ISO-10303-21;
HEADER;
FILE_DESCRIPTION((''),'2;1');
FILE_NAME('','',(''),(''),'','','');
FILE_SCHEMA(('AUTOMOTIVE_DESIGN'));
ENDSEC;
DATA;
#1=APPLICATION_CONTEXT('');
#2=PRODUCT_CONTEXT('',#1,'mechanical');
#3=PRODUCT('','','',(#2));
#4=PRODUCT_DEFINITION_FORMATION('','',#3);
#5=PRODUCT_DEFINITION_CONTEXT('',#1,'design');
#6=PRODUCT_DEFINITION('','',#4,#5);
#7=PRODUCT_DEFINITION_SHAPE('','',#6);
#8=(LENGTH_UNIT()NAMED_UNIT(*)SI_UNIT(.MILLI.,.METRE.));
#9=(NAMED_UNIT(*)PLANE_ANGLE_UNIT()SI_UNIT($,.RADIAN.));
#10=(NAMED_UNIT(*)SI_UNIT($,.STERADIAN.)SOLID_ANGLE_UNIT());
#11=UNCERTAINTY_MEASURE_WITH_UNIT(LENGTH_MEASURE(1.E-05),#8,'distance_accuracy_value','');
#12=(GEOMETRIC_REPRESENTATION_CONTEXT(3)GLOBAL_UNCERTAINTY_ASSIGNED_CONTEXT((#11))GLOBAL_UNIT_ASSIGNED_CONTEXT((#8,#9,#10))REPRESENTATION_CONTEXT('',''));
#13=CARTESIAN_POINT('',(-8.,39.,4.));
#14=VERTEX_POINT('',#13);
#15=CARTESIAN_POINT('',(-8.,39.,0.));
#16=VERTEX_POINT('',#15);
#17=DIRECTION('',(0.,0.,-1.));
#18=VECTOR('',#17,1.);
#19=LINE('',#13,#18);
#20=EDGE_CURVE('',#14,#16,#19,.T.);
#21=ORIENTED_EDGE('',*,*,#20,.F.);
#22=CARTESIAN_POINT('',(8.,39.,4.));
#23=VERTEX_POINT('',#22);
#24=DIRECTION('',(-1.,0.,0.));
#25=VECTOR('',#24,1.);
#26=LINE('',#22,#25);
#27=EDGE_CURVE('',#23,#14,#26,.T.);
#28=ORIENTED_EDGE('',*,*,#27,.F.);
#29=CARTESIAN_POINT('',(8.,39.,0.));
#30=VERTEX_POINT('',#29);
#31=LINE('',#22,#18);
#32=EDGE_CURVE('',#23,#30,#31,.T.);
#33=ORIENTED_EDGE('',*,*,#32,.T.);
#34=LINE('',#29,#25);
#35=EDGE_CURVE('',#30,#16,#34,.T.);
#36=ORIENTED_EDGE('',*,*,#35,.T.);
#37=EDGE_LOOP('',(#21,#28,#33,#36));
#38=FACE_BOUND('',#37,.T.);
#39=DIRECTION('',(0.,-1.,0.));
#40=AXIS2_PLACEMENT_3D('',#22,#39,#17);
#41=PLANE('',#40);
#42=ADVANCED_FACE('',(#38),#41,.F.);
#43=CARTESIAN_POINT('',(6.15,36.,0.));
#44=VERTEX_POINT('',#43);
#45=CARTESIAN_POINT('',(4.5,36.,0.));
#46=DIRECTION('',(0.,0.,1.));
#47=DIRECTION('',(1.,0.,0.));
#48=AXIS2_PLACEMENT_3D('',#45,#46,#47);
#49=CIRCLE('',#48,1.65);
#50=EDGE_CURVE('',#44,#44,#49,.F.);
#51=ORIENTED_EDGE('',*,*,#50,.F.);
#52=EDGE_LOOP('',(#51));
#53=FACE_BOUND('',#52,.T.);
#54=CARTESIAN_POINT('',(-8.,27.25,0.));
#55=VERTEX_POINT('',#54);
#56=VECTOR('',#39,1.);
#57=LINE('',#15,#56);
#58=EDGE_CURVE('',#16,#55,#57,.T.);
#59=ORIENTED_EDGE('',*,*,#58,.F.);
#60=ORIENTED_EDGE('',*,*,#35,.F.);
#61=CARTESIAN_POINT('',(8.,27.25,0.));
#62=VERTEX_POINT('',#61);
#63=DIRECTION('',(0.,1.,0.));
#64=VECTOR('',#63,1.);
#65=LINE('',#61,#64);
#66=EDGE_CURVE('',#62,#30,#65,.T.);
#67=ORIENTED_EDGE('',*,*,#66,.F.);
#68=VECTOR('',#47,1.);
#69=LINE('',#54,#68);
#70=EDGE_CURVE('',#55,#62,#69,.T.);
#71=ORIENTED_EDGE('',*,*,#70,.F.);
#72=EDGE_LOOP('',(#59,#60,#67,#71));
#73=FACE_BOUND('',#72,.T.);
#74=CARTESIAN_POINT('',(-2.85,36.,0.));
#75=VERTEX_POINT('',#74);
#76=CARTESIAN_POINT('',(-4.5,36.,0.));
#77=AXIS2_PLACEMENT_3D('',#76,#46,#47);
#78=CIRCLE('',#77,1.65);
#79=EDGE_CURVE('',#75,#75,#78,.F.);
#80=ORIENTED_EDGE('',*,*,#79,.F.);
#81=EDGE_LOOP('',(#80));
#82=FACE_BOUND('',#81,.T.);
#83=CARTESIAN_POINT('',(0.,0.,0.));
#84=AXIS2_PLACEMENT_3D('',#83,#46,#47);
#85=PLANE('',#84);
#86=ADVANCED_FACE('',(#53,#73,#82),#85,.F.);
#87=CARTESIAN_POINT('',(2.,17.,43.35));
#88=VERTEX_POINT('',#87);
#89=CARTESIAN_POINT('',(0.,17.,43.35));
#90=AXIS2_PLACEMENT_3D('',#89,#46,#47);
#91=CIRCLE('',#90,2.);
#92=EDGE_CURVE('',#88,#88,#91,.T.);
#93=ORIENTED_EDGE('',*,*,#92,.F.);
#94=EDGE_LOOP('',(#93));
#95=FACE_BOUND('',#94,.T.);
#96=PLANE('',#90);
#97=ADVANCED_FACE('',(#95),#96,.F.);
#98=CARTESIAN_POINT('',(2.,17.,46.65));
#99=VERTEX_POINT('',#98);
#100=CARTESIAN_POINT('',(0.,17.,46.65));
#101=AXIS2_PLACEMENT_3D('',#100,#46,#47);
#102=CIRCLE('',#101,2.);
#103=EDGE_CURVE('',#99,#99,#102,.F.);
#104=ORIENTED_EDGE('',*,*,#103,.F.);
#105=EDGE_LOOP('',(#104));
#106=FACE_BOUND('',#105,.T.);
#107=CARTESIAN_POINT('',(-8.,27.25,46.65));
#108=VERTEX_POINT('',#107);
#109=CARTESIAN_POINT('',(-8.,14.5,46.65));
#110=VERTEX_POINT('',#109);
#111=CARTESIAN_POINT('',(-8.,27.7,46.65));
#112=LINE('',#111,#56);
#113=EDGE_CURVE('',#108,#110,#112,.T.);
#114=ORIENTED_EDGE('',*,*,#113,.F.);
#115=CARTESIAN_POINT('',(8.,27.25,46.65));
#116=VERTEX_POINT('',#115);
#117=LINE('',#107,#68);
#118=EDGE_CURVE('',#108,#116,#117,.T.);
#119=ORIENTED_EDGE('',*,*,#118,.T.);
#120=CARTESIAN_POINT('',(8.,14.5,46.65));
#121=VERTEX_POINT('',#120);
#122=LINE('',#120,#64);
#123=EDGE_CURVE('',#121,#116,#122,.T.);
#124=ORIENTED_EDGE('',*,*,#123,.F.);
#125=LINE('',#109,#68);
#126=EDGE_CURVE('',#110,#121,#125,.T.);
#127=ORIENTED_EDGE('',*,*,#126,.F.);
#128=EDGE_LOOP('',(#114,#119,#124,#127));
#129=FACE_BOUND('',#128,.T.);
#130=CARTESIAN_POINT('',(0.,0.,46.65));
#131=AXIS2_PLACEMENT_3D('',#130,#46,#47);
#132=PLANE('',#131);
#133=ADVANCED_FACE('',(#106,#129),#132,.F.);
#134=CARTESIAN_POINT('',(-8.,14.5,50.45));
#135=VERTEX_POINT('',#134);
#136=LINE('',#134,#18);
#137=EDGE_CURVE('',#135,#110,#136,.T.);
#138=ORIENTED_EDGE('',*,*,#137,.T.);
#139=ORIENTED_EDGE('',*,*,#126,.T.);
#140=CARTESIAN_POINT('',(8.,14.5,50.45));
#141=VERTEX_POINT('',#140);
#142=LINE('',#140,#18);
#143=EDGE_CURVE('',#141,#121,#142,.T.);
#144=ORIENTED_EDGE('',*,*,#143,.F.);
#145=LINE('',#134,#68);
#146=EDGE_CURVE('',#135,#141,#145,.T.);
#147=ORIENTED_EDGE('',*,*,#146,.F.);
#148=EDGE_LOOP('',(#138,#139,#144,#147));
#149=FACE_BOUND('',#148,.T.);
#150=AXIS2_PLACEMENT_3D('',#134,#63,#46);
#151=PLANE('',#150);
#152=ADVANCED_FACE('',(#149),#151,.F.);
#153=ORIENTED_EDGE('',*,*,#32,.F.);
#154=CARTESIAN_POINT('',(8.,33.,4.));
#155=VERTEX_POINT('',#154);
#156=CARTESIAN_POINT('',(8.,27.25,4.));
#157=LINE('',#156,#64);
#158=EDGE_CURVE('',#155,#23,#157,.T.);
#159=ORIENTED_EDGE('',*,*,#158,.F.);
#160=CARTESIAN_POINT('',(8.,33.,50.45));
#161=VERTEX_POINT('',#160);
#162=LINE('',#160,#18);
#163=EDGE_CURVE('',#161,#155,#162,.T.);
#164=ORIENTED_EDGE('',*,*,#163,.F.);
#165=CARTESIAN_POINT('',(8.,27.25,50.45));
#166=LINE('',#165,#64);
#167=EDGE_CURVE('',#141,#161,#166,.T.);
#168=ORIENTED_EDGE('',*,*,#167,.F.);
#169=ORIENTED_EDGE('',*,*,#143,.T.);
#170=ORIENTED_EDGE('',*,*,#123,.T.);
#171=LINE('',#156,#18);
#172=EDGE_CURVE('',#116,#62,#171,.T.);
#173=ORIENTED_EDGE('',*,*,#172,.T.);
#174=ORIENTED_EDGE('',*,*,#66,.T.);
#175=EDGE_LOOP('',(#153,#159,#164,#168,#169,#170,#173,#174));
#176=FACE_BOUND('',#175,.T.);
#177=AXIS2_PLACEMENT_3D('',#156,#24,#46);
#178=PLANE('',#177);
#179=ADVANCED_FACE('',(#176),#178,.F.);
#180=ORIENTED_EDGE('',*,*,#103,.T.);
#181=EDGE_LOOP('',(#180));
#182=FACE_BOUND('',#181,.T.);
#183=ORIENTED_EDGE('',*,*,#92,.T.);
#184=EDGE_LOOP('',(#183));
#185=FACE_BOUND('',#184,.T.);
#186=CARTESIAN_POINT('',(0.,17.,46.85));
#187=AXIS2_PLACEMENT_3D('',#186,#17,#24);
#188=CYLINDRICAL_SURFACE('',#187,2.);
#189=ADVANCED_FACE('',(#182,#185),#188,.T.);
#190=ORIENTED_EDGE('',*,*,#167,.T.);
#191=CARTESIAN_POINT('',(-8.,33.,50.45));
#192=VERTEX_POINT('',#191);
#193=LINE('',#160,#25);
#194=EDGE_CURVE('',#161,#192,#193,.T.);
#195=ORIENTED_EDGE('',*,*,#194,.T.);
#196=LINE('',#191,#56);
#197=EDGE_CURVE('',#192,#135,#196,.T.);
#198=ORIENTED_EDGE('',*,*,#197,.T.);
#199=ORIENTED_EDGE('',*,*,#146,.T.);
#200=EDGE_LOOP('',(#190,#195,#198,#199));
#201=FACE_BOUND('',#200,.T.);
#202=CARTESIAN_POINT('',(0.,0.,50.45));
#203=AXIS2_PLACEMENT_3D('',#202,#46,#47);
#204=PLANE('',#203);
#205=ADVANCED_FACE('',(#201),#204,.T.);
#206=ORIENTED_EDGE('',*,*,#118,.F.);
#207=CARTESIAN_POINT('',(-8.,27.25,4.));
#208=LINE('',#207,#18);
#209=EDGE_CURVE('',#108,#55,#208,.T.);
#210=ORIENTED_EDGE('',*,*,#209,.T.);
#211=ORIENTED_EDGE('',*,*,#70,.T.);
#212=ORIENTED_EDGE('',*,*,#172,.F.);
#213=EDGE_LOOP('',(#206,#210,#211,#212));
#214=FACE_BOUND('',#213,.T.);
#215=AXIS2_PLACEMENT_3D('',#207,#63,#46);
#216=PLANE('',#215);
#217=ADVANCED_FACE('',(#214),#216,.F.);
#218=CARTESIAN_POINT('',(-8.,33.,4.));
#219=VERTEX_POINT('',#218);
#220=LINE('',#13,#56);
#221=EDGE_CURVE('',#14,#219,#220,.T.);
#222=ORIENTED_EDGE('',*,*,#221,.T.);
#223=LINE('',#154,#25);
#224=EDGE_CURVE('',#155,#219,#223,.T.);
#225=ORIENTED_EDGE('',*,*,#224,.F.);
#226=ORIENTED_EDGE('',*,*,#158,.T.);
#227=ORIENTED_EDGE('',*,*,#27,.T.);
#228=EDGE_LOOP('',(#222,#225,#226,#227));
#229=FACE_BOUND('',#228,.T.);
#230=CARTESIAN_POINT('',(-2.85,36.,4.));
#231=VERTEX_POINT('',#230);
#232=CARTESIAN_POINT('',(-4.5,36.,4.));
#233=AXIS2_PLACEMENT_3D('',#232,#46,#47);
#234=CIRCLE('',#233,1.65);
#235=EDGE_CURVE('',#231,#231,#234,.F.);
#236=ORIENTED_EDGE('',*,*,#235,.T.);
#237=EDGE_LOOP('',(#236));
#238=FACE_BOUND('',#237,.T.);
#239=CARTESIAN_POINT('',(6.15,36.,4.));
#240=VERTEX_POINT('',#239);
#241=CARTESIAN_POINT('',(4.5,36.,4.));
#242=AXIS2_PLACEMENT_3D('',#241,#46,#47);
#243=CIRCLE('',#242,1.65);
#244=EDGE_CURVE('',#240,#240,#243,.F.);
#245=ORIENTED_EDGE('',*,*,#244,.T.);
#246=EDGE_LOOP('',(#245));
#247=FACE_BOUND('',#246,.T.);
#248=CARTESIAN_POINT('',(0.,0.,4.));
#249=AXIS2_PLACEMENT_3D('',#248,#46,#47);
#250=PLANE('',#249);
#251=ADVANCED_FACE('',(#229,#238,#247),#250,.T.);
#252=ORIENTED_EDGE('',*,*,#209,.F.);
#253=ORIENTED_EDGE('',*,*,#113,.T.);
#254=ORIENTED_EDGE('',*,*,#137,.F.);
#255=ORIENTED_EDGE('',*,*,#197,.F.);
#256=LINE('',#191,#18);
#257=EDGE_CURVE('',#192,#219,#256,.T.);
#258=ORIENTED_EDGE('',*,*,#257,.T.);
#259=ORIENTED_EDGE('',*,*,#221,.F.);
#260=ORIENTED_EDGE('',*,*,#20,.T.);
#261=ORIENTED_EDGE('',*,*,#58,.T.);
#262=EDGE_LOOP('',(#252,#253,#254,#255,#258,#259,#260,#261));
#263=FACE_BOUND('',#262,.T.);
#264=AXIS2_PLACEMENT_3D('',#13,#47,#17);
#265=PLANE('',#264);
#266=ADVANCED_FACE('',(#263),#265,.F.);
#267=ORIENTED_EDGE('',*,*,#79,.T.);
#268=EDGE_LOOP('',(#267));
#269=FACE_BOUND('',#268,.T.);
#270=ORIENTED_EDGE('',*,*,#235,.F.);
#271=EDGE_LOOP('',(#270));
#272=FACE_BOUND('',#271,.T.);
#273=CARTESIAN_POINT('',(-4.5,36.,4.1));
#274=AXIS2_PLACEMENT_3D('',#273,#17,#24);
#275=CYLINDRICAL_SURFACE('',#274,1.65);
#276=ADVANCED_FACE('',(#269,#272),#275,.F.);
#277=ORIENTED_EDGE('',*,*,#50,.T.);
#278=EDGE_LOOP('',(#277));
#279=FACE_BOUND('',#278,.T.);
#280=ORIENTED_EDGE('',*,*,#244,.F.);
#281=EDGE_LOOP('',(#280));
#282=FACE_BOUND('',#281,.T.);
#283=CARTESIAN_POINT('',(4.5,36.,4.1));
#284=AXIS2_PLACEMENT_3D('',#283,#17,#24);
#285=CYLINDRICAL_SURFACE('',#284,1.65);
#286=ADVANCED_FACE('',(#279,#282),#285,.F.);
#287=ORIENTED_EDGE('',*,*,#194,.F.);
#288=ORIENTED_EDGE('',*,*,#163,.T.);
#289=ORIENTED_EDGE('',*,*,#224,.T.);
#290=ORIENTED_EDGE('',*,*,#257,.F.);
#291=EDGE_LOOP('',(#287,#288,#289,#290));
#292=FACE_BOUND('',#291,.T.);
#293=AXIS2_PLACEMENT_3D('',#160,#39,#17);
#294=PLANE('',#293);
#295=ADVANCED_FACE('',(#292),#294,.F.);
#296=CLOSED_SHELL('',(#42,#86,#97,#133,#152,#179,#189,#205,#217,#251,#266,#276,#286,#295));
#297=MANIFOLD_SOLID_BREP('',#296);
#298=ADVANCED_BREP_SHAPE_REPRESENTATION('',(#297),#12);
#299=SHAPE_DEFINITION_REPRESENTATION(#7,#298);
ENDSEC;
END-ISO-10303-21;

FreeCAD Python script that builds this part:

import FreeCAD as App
import Part
import Sketcher

V = App.Vector
Q = App.Units.Quantity


def add_polygon(sketch, points):
    """Adds a closed chain of lines whose ends are joined by coincident constraints."""
    first, n = sketch.GeometryCount, len(points)
    for a, b in zip(points, points[1:] + points[:1]):
        sketch.addGeometry(Part.LineSegment(App.Vector(*a, 0), App.Vector(*b, 0)), False)
    for i in range(n):
        sketch.addConstraint(Sketcher.Constraint("Coincident", first + i, 2, first + (i + 1) % n, 1))

doc = App.newDocument("Part")
body = doc.addObject("PartDesign::Body", "Body")

sketch1 = doc.addObject("Sketcher::SketchObject", "Sketch")
body.addObject(sketch1)
sketch1.AttachmentSupport = (doc.XY_Plane, [""])
sketch1.MapMode = "FlatFace"
add_polygon(sketch1, [(-8, 39), (-8, 27), (8, 27), (8, 39)])
sketch1.addConstraint([
    Sketcher.Constraint("Vertical", 0),
    Sketcher.Constraint("Horizontal", 1),
    Sketcher.Constraint("Vertical", 2),
    Sketcher.Constraint("Horizontal", 3),
    Sketcher.Constraint("DistanceX", 1, 1, 1, 2, Q("16 mm")),
    Sketcher.Constraint("DistanceX", 0, 2, -1, 1, Q("8 mm")),
    Sketcher.Constraint("DistanceY", -1, 1, 2, 2, Q("39 mm")),
    Sketcher.Constraint("DistanceY", 0, 2, 0, 1, Q("11.75 mm")),
])
pad1 = doc.addObject("PartDesign::Pad", "Pad")
body.addObject(pad1)
pad1.Profile = sketch1
pad1.Length = 4

sketch2 = doc.addObject("Sketcher::SketchObject", "Sketch001")
body.addObject(sketch2)
sketch2.AttachmentSupport = (doc.XY_Plane, [""])
sketch2.MapMode = "FlatFace"
sketch2.AttachmentOffset = App.Placement(V(0, 0, 4), App.Rotation())
add_polygon(sketch2, [(-8, 33), (-8, 27), (8, 27), (8, 33)])
sketch2.addConstraint([
    Sketcher.Constraint("Vertical", 0),
    Sketcher.Constraint("Horizontal", 1),
    Sketcher.Constraint("Vertical", 2),
    Sketcher.Constraint("Horizontal", 3),
    Sketcher.Constraint("DistanceX", 1, 1, 1, 2, Q("16 mm")),
    Sketcher.Constraint("DistanceX", 0, 2, -1, 1, Q("8 mm")),
    Sketcher.Constraint("DistanceY", -1, 1, 2, 2, Q("33 mm")),
    Sketcher.Constraint("DistanceY", 0, 2, 0, 1, Q("5.75 mm")),
])
pad2 = doc.addObject("PartDesign::Pad", "Pad001")
body.addObject(pad2)
pad2.Profile = sketch2
pad2.Length = 46.45

sketch3 = doc.addObject("Sketcher::SketchObject", "Sketch002")
body.addObject(sketch3)
sketch3.AttachmentSupport = (doc.XY_Plane, [""])
sketch3.MapMode = "FlatFace"
sketch3.AttachmentOffset = App.Placement(V(0, 0, 46.65), App.Rotation())
add_polygon(sketch3, [(-8, 28), (-8, 14), (8, 14), (8, 28)])
sketch3.addConstraint([
    Sketcher.Constraint("Vertical", 0),
    Sketcher.Constraint("Horizontal", 1),
    Sketcher.Constraint("Vertical", 2),
    Sketcher.Constraint("Horizontal", 3),
    Sketcher.Constraint("DistanceX", 1, 1, 1, 2, Q("16 mm")),
    Sketcher.Constraint("DistanceY", 0, 2, 0, 1, Q("13.2 mm")),
    Sketcher.Constraint("DistanceX", 0, 2, -1, 1, Q("8 mm")),
    Sketcher.Constraint("DistanceY", -1, 1, 0, 2, Q("14.5 mm")),
])
pad3 = doc.addObject("PartDesign::Pad", "Pad002")
body.addObject(pad3)
pad3.Profile = sketch3
pad3.Length = 3.8

sketch4 = doc.addObject("Sketcher::SketchObject", "Sketch003")
body.addObject(sketch4)
sketch4.AttachmentSupport = (doc.XY_Plane, [""])
sketch4.MapMode = "FlatFace"
sketch4.AttachmentOffset = App.Placement(V(0, 0, -0.1), App.Rotation())
sketch4.addGeometry([
    Part.Circle(V(-4.5, 36, 0), V(0, 0, 1), 1.6),
    Part.Circle(V(4.5, 36, 0), V(0, 0, 1), 1.6),
], False)
sketch4.addConstraint([
    Sketcher.Constraint("Equal", 0, 1),
    Sketcher.Constraint("Symmetric", 0, 3, 1, 3, -2),
    Sketcher.Constraint("Diameter", 0, Q("3.3 mm")),
    Sketcher.Constraint("DistanceY", -1, 1, 0, 3, Q("36 mm")),
    Sketcher.Constraint("DistanceX", 0, 3, 1, 3, Q("9 mm")),
])
pocket1 = doc.addObject("PartDesign::Pocket", "Pocket")
body.addObject(pocket1)
pocket1.Profile = sketch4
pocket1.Length = 4.2
pocket1.Reversed = True

sketch5 = doc.addObject("Sketcher::SketchObject", "Sketch004")
body.addObject(sketch5)
sketch5.AttachmentSupport = (doc.XY_Plane, [""])
sketch5.MapMode = "FlatFace"
sketch5.AttachmentOffset = App.Placement(V(0, 0, 43.35), App.Rotation())
sketch5.addGeometry(Part.Circle(V(0, 17, 0), V(0, 0, 1), 2), False)
sketch5.addConstraint([
    Sketcher.Constraint("PointOnObject", 0, 3, -2),
    Sketcher.Constraint("Diameter", 0, Q("4 mm")),
    Sketcher.Constraint("DistanceY", -1, 1, 0, 3, Q("17 mm")),
])
pad4 = doc.addObject("PartDesign::Pad", "Pad003")
body.addObject(pad4)
pad4.Profile = sketch5
pad4.Length = 3.5

doc.recompute()
